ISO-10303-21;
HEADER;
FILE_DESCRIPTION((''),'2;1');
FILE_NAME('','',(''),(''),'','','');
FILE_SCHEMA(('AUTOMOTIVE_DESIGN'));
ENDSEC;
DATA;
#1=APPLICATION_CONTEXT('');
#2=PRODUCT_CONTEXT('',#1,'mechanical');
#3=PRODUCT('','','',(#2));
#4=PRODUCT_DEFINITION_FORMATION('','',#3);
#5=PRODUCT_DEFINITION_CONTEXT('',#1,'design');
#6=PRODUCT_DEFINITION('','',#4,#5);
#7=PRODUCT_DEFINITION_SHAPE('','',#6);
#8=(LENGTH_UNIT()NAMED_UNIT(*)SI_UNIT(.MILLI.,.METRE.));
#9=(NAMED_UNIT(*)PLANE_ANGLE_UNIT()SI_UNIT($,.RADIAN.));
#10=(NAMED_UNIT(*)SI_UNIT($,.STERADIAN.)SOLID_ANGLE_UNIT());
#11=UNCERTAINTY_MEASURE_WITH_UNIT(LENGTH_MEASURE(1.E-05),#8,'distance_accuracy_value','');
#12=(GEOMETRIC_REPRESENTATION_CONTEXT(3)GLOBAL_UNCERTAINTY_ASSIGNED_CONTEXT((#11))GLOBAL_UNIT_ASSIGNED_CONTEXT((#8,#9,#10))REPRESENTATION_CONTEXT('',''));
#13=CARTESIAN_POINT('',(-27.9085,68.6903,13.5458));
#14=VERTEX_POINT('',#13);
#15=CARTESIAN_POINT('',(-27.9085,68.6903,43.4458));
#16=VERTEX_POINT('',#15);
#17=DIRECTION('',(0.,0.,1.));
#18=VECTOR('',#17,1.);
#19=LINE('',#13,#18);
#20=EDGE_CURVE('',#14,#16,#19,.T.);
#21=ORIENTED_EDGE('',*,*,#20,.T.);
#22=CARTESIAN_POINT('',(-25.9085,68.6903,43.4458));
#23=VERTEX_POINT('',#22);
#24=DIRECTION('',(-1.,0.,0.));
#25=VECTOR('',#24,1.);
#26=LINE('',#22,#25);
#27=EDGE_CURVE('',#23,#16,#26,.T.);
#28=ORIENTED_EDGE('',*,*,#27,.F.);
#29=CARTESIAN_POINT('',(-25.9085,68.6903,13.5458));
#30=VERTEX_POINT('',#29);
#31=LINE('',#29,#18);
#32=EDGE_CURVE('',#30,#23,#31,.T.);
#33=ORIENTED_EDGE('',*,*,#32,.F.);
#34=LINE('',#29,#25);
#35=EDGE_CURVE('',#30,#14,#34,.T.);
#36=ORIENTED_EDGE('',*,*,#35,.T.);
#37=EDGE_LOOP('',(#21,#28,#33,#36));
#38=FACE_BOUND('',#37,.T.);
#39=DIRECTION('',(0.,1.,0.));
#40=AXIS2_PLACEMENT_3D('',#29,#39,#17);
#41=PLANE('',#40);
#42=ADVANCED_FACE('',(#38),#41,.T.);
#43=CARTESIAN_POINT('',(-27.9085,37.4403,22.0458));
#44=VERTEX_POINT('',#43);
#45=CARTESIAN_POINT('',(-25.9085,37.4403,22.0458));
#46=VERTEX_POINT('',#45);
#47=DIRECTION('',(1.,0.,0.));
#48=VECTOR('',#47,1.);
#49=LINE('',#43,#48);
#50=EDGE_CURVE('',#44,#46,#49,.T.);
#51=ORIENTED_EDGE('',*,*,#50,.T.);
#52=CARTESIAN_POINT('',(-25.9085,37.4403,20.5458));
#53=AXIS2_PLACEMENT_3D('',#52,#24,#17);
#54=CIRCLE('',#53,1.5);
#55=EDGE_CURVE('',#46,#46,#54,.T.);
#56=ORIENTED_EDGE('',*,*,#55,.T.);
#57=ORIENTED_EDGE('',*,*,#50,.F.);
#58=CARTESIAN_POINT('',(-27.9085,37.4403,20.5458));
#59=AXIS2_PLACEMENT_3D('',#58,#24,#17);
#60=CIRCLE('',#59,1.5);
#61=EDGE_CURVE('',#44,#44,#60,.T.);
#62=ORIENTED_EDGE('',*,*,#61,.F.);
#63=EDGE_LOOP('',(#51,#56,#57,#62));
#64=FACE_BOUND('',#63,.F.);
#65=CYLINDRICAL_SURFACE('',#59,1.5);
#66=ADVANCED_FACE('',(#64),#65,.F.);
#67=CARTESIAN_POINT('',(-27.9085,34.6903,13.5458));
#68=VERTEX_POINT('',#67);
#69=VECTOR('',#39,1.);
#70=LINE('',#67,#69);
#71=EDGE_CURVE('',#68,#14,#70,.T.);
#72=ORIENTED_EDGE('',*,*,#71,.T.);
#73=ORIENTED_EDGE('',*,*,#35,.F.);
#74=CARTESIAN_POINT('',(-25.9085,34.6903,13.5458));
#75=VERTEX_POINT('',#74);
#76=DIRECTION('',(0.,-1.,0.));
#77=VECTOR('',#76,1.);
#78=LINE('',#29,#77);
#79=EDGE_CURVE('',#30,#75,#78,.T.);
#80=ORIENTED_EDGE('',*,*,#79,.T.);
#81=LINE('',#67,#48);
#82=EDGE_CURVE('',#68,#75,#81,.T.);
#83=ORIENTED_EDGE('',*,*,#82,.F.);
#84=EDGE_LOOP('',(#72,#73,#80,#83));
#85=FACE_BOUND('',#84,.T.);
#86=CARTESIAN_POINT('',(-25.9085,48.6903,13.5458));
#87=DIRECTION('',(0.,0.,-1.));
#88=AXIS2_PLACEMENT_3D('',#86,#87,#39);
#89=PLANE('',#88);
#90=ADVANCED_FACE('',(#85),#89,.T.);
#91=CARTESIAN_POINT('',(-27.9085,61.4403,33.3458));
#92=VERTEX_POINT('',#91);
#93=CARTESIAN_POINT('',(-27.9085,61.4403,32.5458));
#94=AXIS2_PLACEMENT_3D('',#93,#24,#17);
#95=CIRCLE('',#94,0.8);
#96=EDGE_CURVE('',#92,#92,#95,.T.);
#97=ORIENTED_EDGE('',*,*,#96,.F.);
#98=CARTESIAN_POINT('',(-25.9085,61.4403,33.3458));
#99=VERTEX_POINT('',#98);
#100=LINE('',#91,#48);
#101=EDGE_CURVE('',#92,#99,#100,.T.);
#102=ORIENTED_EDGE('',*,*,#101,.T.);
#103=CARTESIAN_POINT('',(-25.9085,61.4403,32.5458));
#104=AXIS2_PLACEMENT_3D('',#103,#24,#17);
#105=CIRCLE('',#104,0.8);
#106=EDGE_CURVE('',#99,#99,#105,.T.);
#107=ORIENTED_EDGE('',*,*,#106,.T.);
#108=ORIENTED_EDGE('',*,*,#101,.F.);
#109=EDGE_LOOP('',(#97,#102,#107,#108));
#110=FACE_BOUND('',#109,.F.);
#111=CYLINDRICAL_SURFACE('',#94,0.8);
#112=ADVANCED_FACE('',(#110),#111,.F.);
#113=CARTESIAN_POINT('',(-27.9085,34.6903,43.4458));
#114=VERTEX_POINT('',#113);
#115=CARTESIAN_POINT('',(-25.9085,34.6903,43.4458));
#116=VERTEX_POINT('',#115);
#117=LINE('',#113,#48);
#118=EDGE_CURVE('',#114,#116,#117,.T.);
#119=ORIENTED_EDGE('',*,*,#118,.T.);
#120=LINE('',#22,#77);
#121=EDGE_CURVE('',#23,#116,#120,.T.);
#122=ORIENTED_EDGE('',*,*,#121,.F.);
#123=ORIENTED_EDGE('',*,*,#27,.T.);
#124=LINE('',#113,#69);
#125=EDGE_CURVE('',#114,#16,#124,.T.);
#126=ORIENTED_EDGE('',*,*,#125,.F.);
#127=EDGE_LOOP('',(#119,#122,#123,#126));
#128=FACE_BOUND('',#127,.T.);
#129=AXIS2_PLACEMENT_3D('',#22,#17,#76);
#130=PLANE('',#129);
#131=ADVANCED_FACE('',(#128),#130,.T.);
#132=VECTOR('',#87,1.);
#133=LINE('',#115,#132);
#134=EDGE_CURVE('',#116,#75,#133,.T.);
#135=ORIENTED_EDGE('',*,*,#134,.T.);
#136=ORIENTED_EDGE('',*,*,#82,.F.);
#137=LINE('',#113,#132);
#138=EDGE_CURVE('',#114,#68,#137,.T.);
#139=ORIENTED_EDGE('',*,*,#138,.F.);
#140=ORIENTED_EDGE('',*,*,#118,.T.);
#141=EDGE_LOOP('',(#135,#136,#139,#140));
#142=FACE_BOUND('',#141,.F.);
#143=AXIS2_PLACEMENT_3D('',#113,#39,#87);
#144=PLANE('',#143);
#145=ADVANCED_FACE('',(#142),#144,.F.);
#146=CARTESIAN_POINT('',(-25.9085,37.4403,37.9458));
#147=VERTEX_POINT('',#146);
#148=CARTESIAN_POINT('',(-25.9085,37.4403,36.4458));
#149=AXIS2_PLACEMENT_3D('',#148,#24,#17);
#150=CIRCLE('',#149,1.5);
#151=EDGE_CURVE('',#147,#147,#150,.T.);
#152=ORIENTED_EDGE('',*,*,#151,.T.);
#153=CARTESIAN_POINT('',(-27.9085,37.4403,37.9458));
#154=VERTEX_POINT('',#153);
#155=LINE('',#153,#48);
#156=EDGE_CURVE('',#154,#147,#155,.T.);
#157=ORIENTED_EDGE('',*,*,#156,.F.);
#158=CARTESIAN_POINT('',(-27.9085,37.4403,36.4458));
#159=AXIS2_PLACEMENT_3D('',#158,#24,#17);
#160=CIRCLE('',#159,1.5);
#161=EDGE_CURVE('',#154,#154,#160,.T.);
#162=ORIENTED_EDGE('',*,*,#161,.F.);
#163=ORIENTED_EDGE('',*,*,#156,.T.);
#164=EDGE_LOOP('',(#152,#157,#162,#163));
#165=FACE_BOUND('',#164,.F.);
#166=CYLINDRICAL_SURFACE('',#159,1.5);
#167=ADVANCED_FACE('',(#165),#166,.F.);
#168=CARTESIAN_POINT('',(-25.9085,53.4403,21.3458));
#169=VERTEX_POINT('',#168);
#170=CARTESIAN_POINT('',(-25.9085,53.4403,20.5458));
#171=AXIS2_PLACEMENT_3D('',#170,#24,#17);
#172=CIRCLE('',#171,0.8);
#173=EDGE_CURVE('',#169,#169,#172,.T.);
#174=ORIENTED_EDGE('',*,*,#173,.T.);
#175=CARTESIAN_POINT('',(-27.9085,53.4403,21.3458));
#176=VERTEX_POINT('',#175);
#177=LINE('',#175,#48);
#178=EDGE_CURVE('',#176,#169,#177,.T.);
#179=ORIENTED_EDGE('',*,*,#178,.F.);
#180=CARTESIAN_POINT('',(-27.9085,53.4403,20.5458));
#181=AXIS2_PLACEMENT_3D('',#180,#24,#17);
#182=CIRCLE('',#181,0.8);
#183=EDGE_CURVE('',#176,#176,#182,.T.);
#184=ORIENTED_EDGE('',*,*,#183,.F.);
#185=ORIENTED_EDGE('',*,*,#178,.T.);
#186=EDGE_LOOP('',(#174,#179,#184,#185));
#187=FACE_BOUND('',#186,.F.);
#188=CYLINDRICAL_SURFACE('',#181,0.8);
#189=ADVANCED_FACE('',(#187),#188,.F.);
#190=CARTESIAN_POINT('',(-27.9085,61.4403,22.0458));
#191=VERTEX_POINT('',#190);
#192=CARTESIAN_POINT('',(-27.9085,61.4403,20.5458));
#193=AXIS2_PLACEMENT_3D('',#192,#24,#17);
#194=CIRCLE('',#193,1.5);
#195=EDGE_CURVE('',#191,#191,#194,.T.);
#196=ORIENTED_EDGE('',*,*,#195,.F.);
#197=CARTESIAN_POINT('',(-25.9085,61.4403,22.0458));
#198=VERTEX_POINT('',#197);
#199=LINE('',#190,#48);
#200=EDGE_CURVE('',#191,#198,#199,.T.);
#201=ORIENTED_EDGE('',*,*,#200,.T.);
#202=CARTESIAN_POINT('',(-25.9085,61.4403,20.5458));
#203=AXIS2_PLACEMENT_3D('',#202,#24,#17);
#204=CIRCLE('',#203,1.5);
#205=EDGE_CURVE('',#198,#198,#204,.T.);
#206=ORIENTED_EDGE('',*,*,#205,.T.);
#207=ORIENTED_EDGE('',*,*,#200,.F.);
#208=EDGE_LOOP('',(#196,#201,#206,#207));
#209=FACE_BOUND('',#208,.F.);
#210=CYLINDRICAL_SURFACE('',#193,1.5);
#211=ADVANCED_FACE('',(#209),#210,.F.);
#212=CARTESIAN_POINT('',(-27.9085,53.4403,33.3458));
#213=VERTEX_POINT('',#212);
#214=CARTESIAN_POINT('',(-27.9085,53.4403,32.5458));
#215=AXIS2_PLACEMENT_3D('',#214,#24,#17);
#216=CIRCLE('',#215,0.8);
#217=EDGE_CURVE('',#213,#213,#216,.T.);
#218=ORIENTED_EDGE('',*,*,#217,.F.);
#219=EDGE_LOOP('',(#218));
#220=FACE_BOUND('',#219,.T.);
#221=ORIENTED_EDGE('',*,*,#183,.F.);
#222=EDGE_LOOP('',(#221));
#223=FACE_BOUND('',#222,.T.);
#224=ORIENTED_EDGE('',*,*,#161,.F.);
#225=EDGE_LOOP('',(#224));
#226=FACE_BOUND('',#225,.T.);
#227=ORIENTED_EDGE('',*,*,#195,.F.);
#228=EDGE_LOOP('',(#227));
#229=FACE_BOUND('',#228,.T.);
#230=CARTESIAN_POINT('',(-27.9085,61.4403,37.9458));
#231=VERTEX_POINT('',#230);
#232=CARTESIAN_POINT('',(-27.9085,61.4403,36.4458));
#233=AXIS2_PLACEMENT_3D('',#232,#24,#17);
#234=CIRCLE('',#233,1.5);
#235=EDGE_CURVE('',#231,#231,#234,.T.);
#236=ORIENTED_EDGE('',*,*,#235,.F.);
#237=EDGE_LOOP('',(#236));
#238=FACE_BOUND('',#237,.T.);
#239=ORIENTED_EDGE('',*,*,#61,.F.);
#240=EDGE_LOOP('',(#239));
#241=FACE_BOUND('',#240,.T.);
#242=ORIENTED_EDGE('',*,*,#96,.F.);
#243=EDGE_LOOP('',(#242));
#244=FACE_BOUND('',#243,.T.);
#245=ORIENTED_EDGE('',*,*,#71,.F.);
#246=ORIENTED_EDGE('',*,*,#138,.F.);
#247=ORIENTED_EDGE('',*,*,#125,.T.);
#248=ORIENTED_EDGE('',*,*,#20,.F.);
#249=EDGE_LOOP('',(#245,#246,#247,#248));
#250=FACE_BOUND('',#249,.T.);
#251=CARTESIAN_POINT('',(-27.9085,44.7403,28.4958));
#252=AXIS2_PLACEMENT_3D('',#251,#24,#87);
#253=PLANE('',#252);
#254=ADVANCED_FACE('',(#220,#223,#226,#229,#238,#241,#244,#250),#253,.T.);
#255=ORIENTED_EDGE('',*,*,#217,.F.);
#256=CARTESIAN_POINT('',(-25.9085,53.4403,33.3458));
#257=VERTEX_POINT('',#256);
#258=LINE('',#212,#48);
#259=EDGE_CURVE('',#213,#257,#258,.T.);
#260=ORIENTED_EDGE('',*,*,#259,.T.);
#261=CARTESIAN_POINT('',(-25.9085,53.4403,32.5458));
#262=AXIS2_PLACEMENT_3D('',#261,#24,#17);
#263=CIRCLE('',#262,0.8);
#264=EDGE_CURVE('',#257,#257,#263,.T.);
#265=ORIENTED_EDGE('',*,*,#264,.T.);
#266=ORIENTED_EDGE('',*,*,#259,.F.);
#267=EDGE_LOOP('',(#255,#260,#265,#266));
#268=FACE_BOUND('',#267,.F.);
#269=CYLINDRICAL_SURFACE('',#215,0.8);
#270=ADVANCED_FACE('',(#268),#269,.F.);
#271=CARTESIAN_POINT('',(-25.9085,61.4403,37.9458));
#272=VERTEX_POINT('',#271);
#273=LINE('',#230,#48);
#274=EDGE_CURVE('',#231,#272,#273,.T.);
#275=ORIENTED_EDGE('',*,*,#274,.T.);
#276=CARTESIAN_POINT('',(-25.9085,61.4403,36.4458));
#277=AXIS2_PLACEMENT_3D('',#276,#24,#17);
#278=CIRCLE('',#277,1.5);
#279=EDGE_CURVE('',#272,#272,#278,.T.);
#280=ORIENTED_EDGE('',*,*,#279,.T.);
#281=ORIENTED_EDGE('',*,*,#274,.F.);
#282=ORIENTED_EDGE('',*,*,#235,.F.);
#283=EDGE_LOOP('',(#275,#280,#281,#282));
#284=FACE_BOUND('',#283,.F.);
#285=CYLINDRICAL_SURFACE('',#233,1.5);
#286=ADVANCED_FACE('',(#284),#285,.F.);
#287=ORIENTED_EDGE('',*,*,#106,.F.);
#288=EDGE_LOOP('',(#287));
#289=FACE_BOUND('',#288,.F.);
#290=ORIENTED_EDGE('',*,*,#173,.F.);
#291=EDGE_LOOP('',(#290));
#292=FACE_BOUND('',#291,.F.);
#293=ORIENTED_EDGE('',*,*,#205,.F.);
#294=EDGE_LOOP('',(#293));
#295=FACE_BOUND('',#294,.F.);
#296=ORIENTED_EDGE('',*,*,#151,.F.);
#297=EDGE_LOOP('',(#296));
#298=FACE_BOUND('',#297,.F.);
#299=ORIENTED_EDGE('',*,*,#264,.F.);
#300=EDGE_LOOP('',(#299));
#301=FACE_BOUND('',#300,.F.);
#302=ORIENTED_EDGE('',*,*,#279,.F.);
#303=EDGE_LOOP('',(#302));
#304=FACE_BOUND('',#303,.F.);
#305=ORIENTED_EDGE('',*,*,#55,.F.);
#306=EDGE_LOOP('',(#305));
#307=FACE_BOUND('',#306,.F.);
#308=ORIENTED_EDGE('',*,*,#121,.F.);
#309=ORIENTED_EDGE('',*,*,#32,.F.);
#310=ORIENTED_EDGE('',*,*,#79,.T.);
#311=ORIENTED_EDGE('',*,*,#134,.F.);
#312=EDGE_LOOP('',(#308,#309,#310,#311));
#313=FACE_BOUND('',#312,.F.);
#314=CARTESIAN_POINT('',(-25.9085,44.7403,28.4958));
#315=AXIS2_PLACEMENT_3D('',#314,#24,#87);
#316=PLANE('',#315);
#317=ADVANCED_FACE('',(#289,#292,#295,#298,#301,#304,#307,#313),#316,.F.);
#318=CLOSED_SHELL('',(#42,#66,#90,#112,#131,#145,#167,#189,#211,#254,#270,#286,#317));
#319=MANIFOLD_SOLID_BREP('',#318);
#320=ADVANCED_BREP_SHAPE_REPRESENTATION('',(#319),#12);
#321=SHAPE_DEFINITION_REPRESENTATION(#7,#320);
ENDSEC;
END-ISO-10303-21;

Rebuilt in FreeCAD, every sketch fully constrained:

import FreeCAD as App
import Part
import Sketcher

V = App.Vector
Q = App.Units.Quantity


def add_polygon(sketch, points):
    """Adds a closed chain of lines whose ends are joined by coincident constraints."""
    first, n = sketch.GeometryCount, len(points)
    for a, b in zip(points, points[1:] + points[:1]):
        sketch.addGeometry(Part.LineSegment(App.Vector(*a, 0), App.Vector(*b, 0)), False)
    for i in range(n):
        sketch.addConstraint(Sketcher.Constraint("Coincident", first + i, 2, first + (i + 1) % n, 1))

doc = App.newDocument("Part")
body = doc.addObject("PartDesign::Body", "Body")

sketch1 = doc.addObject("Sketcher::SketchObject", "Sketch")
body.addObject(sketch1)
sketch1.AttachmentSupport = (doc.YZ_Plane, [""])
sketch1.MapMode = "FlatFace"
sketch1.AttachmentOffset = App.Placement(V(0, 0, -25.9085), App.Rotation())
add_polygon(sketch1, [(49, 14), (49, 43), (69, 43), (69, 14)])
sketch1.addConstraint(Sketcher.Constraint("Vertical", 0))
sketch1.addConstraint(Sketcher.Constraint("Horizontal", 1))
sketch1.addConstraint(Sketcher.Constraint("Vertical", 2))
sketch1.addConstraint(Sketcher.Constraint("Horizontal", 3))
sketch1.addConstraint(Sketcher.Constraint("DistanceX", 1, 1, 1, 2, Q("20 mm")))
sketch1.addConstraint(Sketcher.Constraint("DistanceY", 0, 1, 0, 2, Q("29.9 mm")))
sketch1.addConstraint(Sketcher.Constraint("DistanceX", -1, 1, 0, 2, Q("48.6903 mm")))
sketch1.addConstraint(Sketcher.Constraint("DistanceY", -1, 1, 0, 2, Q("43.4458 mm")))
pad1 = doc.addObject("PartDesign::Pad", "Pad")
body.addObject(pad1)
pad1.Profile = sketch1
pad1.Length = 2
pad1.Reversed = True

sketch2 = doc.addObject("Sketcher::SketchObject", "Sketch001")
body.addObject(sketch2)
sketch2.AttachmentSupport = (doc.YZ_Plane, [""])
sketch2.MapMode = "FlatFace"
sketch2.AttachmentOffset = App.Placement(V(0, 0, -27.9085), App.Rotation())
add_polygon(sketch2, [(49, 43), (49, 14), (35, 14), (35, 43)])
sketch2.addConstraint(Sketcher.Constraint("Vertical", 0))
sketch2.addConstraint(Sketcher.Constraint("Horizontal", 1))
sketch2.addConstraint(Sketcher.Constraint("Vertical", 2))
sketch2.addConstraint(Sketcher.Constraint("Horizontal", 3))
sketch2.addConstraint(Sketcher.Constraint("DistanceX", 1, 2, 1, 1, Q("14 mm")))
sketch2.addConstraint(Sketcher.Constraint("DistanceY", 0, 2, 0, 1, Q("29.9 mm")))
sketch2.addConstraint(Sketcher.Constraint("DistanceX", -1, 1, 0, 2, Q("48.6903 mm")))
sketch2.addConstraint(Sketcher.Constraint("DistanceY", -1, 1, 0, 2, Q("13.5458 mm")))
pad2 = doc.addObject("PartDesign::Pad", "Pad001")
body.addObject(pad2)
pad2.Profile = sketch2
pad2.Length = 2

sketch3 = doc.addObject("Sketcher::SketchObject", "Sketch002")
body.addObject(sketch3)
sketch3.AttachmentSupport = (doc.YZ_Plane, [""])
sketch3.MapMode = "FlatFace"
sketch3.AttachmentOffset = App.Placement(V(0, 0, -27.9085), App.Rotation())
sketch3.addGeometry(Part.Circle(V(61.4, 20.5, 0), V(0, 0, 1), 1.5), False)
sketch3.addGeometry(Part.Circle(V(37.4, 20.5, 0), V(0, 0, 1), 1.5), False)
sketch3.addGeometry(Part.Circle(V(37.4, 36.4, 0), V(0, 0, 1), 1.5), False)
sketch3.addGeometry(Part.Circle(V(61.4, 36.4, 0), V(0, 0, 1), 1.5), False)
sketch3.addConstraint(Sketcher.Constraint("Equal", 0, 1))
sketch3.addConstraint(Sketcher.Constraint("Equal", 1, 2))
sketch3.addConstraint(Sketcher.Constraint("Equal", 2, 3))
sketch3.addConstraint(Sketcher.Constraint("Horizontal", 0, 3, 1, 3))
sketch3.addConstraint(Sketcher.Constraint("Horizontal", 2, 3, 3, 3))
sketch3.addConstraint(Sketcher.Constraint("Vertical", 1, 3, 2, 3))
sketch3.addConstraint(Sketcher.Constraint("Vertical", 0, 3, 3, 3))
sketch3.addConstraint(Sketcher.Constraint("Diameter", 0, Q("3 mm")))
sketch3.addConstraint(Sketcher.Constraint("DistanceX", 1, 3, 0, 3, Q("24 mm")))
sketch3.addConstraint(Sketcher.Constraint("DistanceY", 1, 3, 2, 3, Q("15.9 mm")))
sketch3.addConstraint(Sketcher.Constraint("DistanceX", -1, 1, 0, 3, Q("61.4403 mm")))
sketch3.addConstraint(Sketcher.Constraint("DistanceY", -1, 1, 0, 3, Q("20.5458 mm")))
pocket1 = doc.addObject("PartDesign::Pocket", "Pocket")
body.addObject(pocket1)
pocket1.Profile = sketch3
pocket1.Length = 2
pocket1.Reversed = True

sketch4 = doc.addObject("Sketcher::SketchObject", "Sketch003")
body.addObject(sketch4)
sketch4.AttachmentSupport = (doc.YZ_Plane, [""])
sketch4.MapMode = "FlatFace"
sketch4.AttachmentOffset = App.Placement(V(0, 0, -27.9085), App.Rotation())
sketch4.addGeometry(Part.Circle(V(61.4, 32.5, 0), V(0, 0, 1), 0.8), False)
sketch4.addGeometry(Part.Circle(V(53.4, 32.5, 0), V(0, 0, 1), 0.8), False)
sketch4.addGeometry(Part.Circle(V(53.4, 20.5, 0), V(0, 0, 1), 0.8), False)
sketch4.addConstraint(Sketcher.Constraint("Equal", 0, 1))
sketch4.addConstraint(Sketcher.Constraint("Equal", 1, 2))
sketch4.addConstraint(Sketcher.Constraint("Horizontal", 0, 3, 1, 3))
sketch4.addConstraint(Sketcher.Constraint("Vertical", 1, 3, 2, 3))
sketch4.addConstraint(Sketcher.Constraint("Diameter", 0, Q("1.6 mm")))
sketch4.addConstraint(Sketcher.Constraint("DistanceX", 1, 3, 0, 3, Q("8 mm")))
sketch4.addConstraint(Sketcher.Constraint("DistanceY", 2, 3, 1, 3, Q("12 mm")))
sketch4.addConstraint(Sketcher.Constraint("DistanceX", -1, 1, 0, 3, Q("61.4403 mm")))
sketch4.addConstraint(Sketcher.Constraint("DistanceY", -1, 1, 0, 3, Q("32.5458 mm")))
pocket2 = doc.addObject("PartDesign::Pocket", "Pocket001")
body.addObject(pocket2)
pocket2.Profile = sketch4
pocket2.Length = 10
pocket2.Reversed = True

doc.recompute()
